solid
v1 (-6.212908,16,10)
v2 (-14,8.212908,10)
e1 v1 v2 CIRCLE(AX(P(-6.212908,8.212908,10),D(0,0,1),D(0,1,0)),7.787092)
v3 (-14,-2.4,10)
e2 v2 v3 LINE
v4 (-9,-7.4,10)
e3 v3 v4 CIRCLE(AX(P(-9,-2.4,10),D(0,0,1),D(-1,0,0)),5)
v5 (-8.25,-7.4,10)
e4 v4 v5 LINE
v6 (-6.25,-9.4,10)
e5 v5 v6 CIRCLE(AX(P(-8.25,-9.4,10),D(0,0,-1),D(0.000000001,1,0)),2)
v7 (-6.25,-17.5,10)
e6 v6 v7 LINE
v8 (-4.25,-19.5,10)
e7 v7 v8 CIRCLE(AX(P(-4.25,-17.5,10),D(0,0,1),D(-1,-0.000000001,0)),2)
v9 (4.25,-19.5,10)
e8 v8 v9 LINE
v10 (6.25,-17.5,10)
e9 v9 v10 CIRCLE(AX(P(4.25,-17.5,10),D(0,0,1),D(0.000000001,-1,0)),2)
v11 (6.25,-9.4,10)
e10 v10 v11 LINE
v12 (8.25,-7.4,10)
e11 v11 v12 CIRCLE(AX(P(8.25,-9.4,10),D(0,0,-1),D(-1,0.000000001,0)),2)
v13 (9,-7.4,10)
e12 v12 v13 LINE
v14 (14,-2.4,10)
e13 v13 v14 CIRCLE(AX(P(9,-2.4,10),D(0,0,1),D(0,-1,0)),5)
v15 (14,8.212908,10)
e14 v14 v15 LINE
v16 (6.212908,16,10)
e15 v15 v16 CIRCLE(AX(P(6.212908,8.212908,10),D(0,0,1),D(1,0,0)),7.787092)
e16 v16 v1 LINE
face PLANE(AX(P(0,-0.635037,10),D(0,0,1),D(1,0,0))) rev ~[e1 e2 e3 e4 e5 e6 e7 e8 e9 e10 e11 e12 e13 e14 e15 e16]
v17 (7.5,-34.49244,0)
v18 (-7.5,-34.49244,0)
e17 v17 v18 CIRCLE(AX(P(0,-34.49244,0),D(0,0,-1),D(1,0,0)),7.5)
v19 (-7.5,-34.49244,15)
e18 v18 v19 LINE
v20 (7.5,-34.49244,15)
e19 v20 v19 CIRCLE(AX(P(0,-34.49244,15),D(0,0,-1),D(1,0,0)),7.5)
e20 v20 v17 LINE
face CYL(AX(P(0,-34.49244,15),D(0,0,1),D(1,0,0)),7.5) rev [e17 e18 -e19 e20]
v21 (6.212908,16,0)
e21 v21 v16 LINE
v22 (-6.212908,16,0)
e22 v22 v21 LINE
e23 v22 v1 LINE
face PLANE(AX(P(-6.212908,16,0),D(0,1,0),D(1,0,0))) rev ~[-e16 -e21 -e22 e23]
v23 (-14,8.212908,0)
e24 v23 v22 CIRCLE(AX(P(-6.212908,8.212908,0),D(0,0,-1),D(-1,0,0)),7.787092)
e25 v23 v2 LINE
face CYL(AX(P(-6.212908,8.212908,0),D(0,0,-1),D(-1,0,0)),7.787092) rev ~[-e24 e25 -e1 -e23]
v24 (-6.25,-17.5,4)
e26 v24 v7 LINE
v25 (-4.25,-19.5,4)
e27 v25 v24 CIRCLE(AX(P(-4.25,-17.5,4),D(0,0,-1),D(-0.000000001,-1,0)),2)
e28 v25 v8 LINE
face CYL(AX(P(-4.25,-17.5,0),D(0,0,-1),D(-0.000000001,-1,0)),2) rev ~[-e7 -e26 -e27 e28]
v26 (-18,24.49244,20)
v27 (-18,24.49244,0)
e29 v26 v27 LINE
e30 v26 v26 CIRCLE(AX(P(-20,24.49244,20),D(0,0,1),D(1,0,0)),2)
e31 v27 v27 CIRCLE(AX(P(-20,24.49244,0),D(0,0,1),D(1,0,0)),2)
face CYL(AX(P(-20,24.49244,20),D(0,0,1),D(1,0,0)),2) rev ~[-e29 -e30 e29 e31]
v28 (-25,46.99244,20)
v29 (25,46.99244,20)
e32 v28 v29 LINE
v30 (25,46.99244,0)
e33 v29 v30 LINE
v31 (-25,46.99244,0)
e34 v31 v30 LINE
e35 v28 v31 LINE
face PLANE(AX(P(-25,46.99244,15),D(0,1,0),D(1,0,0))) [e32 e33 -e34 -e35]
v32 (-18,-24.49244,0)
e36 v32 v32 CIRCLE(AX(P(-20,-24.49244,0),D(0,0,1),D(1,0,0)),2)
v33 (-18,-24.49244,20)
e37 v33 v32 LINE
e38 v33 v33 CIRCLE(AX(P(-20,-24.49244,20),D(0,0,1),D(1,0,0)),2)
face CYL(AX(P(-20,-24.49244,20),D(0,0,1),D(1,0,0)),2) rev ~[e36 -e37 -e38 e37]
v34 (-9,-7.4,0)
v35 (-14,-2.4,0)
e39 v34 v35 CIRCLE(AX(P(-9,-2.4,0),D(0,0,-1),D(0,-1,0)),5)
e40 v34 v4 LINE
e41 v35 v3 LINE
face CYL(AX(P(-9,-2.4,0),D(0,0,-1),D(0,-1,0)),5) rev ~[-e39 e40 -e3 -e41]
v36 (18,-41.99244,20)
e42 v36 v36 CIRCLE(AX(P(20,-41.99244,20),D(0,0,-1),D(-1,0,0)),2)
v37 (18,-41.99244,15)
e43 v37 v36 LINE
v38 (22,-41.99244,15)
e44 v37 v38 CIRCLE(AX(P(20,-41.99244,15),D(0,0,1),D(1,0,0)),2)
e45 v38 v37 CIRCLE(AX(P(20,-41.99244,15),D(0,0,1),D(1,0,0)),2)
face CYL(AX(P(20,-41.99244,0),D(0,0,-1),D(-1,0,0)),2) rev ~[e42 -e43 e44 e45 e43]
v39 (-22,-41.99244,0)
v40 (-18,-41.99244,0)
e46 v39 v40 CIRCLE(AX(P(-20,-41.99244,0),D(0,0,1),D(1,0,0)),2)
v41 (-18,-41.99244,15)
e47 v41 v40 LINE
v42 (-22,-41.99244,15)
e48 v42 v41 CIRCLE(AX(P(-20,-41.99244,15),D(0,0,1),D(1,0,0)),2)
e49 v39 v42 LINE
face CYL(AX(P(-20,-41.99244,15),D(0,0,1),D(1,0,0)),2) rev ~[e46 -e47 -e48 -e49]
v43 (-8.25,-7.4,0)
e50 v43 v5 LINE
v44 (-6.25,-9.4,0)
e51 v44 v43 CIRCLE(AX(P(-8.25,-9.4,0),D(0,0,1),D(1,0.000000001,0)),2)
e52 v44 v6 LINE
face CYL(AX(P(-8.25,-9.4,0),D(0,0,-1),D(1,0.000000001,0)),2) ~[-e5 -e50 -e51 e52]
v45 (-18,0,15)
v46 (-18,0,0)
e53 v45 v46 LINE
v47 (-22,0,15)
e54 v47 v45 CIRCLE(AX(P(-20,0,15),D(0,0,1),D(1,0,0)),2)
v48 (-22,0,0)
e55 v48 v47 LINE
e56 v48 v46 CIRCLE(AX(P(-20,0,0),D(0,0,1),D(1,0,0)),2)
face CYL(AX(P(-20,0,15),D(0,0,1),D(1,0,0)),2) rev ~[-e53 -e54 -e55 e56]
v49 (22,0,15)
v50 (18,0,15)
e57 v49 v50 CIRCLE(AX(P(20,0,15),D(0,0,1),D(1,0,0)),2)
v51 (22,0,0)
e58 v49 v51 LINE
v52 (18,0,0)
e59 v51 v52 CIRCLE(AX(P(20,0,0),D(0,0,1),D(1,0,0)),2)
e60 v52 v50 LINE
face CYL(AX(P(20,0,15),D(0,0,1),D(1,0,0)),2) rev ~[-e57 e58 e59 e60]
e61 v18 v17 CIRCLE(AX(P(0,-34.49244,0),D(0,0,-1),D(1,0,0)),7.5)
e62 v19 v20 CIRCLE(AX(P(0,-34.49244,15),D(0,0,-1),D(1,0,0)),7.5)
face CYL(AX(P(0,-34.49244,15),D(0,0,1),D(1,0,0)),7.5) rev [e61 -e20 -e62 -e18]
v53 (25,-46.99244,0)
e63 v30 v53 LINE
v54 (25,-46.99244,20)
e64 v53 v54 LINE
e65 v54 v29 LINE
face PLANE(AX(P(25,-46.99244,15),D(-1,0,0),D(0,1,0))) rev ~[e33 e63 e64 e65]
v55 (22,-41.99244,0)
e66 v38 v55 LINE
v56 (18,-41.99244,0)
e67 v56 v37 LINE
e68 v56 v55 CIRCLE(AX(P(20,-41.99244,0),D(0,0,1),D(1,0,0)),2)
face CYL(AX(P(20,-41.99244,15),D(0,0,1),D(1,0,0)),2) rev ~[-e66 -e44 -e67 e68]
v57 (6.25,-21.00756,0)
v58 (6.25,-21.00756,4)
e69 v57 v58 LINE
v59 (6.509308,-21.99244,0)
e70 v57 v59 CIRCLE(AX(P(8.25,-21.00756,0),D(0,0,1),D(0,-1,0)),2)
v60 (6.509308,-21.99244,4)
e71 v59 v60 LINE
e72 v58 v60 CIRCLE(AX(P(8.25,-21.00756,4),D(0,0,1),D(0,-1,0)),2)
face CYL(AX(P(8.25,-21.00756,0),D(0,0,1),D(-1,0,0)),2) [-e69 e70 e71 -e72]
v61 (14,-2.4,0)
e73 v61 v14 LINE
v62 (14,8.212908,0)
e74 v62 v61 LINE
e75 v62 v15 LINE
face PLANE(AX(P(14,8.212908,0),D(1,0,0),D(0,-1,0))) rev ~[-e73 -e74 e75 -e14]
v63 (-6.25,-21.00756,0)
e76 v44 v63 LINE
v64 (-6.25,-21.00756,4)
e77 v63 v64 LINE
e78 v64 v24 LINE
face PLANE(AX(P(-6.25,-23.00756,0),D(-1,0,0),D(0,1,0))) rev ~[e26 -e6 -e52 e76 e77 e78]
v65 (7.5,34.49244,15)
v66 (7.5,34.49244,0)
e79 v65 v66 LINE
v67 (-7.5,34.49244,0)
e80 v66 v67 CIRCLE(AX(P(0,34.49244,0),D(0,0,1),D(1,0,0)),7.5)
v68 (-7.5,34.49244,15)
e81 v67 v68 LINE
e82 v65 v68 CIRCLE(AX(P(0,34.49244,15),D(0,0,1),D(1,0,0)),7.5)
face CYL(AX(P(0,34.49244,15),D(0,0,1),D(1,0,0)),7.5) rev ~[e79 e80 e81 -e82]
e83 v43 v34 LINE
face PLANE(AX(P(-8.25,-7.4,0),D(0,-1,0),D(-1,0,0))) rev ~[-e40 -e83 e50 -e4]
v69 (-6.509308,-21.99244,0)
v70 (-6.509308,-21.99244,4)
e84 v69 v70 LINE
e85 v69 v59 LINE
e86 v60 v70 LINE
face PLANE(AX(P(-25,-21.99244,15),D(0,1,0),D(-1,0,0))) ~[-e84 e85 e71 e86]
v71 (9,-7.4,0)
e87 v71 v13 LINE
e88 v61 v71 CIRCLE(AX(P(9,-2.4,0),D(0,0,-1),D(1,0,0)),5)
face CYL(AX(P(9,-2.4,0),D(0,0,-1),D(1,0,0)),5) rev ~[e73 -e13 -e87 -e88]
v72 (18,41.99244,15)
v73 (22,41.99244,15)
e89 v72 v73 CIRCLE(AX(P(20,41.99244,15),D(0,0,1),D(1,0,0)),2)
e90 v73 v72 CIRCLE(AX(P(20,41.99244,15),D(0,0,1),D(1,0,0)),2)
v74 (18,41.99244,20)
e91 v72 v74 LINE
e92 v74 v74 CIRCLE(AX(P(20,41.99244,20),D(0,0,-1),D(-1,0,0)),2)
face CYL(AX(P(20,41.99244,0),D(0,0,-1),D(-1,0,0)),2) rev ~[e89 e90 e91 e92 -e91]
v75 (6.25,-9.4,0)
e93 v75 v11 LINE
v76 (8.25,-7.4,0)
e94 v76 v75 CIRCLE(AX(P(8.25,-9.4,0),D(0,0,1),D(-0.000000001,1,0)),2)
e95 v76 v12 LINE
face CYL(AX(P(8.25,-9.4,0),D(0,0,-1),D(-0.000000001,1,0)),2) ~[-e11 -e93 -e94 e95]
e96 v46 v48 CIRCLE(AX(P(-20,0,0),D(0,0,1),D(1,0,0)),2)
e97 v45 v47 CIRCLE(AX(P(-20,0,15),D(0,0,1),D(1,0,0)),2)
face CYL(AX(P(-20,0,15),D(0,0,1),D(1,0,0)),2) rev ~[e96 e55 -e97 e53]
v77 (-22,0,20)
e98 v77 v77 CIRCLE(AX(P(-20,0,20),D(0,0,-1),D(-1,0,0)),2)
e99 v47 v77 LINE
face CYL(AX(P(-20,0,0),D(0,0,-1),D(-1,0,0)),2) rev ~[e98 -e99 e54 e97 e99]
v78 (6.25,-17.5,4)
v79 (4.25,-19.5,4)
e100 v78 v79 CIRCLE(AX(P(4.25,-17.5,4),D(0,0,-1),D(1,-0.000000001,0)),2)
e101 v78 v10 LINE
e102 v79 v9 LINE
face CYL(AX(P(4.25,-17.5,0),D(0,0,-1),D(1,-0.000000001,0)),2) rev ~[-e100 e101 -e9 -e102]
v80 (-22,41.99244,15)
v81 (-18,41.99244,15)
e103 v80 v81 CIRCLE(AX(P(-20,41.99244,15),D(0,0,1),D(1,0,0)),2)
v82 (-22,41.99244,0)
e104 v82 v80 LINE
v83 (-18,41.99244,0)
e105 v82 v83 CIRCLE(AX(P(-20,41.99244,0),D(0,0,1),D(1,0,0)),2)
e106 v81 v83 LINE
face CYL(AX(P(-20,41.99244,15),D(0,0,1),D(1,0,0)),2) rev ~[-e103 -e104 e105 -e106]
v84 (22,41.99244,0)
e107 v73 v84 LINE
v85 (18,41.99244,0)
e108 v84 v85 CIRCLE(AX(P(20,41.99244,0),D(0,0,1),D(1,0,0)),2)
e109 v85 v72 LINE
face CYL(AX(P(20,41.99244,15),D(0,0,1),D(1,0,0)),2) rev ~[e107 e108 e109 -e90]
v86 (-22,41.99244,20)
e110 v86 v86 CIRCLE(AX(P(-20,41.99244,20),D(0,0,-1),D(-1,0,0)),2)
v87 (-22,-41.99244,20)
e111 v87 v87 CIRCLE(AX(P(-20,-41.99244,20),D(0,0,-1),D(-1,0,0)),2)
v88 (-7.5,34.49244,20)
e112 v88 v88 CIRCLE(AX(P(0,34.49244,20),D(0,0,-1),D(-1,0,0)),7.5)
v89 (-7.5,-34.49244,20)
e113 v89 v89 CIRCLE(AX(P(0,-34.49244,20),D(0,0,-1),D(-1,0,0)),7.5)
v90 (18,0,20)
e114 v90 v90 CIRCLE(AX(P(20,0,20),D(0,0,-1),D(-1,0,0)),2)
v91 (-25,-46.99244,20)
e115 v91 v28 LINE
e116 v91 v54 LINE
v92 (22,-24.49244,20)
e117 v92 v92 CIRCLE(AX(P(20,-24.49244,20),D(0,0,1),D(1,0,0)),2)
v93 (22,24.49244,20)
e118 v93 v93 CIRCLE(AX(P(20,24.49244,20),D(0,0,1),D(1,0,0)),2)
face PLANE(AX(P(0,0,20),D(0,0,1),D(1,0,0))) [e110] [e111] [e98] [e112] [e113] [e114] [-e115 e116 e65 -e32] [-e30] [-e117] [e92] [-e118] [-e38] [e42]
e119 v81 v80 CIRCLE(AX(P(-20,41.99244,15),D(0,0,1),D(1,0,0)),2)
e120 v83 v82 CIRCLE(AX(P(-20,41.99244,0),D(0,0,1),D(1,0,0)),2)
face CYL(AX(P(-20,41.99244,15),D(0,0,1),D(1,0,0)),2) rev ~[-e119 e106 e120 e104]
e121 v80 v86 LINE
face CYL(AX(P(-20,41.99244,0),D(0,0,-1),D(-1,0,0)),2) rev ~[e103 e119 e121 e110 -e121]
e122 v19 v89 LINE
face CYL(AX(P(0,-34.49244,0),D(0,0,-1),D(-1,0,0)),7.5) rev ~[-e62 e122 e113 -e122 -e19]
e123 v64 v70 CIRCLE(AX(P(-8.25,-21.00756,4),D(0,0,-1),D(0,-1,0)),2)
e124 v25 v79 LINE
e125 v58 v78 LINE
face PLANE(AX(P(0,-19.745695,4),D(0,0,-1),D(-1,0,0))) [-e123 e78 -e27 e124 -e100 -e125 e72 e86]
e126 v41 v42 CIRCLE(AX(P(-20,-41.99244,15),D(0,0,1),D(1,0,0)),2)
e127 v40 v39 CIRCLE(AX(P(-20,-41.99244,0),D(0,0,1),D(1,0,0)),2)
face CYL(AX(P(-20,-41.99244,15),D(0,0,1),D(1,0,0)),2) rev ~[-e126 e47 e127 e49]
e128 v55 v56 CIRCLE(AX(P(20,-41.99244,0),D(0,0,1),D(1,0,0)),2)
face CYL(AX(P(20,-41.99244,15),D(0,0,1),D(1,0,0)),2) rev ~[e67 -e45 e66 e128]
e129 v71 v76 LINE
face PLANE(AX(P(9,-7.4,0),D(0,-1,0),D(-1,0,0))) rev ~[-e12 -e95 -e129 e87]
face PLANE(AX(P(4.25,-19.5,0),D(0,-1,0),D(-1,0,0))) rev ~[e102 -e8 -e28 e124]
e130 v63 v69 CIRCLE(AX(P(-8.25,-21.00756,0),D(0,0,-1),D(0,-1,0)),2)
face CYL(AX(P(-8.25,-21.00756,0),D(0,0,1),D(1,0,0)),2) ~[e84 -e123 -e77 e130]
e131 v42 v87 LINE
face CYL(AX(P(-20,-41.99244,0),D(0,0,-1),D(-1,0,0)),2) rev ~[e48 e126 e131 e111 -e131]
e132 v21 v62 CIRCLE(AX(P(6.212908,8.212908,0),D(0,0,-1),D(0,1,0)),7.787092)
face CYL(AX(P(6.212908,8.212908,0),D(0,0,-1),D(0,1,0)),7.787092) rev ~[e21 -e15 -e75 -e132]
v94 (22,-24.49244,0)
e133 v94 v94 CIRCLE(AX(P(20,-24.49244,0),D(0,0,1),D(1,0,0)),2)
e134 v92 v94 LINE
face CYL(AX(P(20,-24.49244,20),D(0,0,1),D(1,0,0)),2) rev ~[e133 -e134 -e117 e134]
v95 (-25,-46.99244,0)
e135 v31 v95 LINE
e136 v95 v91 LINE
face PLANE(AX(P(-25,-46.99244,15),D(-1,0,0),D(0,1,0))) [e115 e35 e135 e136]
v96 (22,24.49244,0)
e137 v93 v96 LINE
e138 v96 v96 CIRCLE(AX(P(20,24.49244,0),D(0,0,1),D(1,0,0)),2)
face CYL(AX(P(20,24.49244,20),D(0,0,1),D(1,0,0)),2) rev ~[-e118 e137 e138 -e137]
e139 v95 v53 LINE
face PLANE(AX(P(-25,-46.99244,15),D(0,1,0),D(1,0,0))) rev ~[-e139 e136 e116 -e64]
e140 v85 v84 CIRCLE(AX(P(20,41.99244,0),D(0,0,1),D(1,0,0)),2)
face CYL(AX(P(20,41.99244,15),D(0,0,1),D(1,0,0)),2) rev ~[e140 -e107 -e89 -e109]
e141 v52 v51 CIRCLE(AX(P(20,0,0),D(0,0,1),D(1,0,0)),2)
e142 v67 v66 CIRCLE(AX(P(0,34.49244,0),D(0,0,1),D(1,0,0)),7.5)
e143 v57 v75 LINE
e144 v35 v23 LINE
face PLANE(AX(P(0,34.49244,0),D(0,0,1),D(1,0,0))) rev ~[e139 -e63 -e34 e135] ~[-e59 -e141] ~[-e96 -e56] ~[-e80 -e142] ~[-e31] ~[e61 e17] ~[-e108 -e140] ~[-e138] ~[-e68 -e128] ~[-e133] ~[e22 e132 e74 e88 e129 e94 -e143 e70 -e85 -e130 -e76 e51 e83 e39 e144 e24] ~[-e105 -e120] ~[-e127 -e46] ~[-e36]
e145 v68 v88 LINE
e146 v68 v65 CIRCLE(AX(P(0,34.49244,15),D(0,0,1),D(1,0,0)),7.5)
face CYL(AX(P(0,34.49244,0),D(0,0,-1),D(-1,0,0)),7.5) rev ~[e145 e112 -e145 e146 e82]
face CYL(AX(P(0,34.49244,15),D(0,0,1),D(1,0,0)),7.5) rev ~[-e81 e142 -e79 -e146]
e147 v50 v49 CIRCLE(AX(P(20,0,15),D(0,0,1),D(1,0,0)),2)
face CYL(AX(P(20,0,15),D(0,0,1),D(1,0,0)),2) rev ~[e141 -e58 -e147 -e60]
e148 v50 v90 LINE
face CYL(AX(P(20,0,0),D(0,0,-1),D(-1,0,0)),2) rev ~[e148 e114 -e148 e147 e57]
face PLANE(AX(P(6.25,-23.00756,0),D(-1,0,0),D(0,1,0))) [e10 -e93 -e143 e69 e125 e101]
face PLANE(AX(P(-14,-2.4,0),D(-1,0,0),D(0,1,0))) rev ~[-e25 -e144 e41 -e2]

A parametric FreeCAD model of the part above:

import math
import FreeCAD as App
import Part
import Sketcher


def edges_at(feature, points):
    """Names of the edges that pass closest to the given points."""
    edges = feature.Shape.Edges
    near = lambda p: min(range(len(edges)), key=lambda i: edges[i].distToShape(Part.Vertex(*p))[0])
    return sorted({f"Edge{near(p) + 1}" for p in points})

doc = App.newDocument("Part")
params = doc.addObject("Spreadsheet::Sheet", "Params")
for row, (alias, value) in enumerate([
    ("sketch1_radius", "10 mm"),
    ("sketch1_width", "14 mm"),
    ("pad1_length", "15 mm"),
    ("sketch2_radius", "5 mm"),
    ("sketch2_radius2", "2 mm"),
    ("sketch2_width", "12.5 mm"),
    ("sketch3_radius", "2 mm"),
    ("sketch3_radius2", "5 mm"),
    ("sketch3_width", "50 mm"),
    ("sketch3_height", "45 mm"),
    ("sketch3_width2", "8.5 mm"),
    ("pad2_length", "15 mm"),
    ("sketch4_width", "12.5 mm"),
    ("pocket2_length", "4 mm"),
    ("fillet_radius", "2 mm"),
    ("sketch5_diameter", "15 mm"),
    ("sketch5_width", "50 mm"),
    ("sketch5_height", "25 mm"),
    ("pad3_length", "15 mm"),
    ("sketch6_diameter", "4 mm"),
    ("sketch7_radius", "2 mm"),
    ("sketch7_radius2", "5 mm"),
    ("sketch7_width", "8.5 mm"),
    ("sketch7_height", "8.1 mm"),
    ("pad4_length", "5 mm"),
    ("sketch8_width", "50 mm"),
    ("pad5_length", "5 mm"),
    ("sketch9_diameter", "4 mm"),
    ("sketch9_diameter2", "15 mm"),
    ("sketch10_diameter", "4 mm"),
], start=1):
    params.set(f"A{row}", alias)
    params.set(f"B{row}", "=" + value)
    params.setAlias(f"B{row}", alias)

body = doc.addObject("PartDesign::Body", "Body")

sketch1 = doc.addObject("Sketcher::SketchObject", "Sketch")
body.addObject(sketch1)
sketch1.AttachmentSupport = (doc.XY_Plane, [""])
sketch1.MapMode = "FlatFace"
sketch1.addGeometry([
    Part.LineSegment(App.Vector(7, 19, 0), App.Vector(-7, 19, 0)),
    Part.ArcOfCircle(Part.Circle(App.Vector(-7, 9, 0), App.Vector(0, 0, 1), 10), math.radians(90), math.radians(180)),
    Part.LineSegment(App.Vector(-17, 9, 0), App.Vector(-17, -5, 0)),
    Part.ArcOfCircle(Part.Circle(App.Vector(-7, -5, 0), App.Vector(0, 0, 1), 10), math.radians(180), math.radians(270)),
    Part.LineSegment(App.Vector(-7, -15, 0), App.Vector(7, -15, 0)),
    Part.ArcOfCircle(Part.Circle(App.Vector(7, -5, 0), App.Vector(0, 0, 1), 10), math.radians(-90), math.radians(0)),
    Part.LineSegment(App.Vector(17, -5, 0), App.Vector(17, 9, 0)),
    Part.ArcOfCircle(Part.Circle(App.Vector(7, 9, 0), App.Vector(0, 0, 1), 10), math.radians(0), math.radians(90)),
], False)
sketch1.addConstraint([
    Sketcher.Constraint("Tangent", 0, 2, 1, 1),
    Sketcher.Constraint("Tangent", 1, 2, 2, 1),
    Sketcher.Constraint("Tangent", 2, 2, 3, 1),
    Sketcher.Constraint("Tangent", 3, 2, 4, 1),
    Sketcher.Constraint("Tangent", 4, 2, 5, 1),
    Sketcher.Constraint("Tangent", 5, 2, 6, 1),
    Sketcher.Constraint("Tangent", 6, 2, 7, 1),
    Sketcher.Constraint("Tangent", 7, 2, 0, 1),
    Sketcher.Constraint("Horizontal", 0),
    Sketcher.Constraint("Vertical", 2),
    Sketcher.Constraint("Horizontal", 4),
    Sketcher.Constraint("Vertical", 6),
    Sketcher.Constraint("Equal", 1, 3),
    Sketcher.Constraint("Equal", 3, 5),
    Sketcher.Constraint("Equal", 5, 7),
    Sketcher.Constraint("Equal", 4, 2),
    Sketcher.Constraint("Radius", 1, 10.0),
    Sketcher.Constraint("DistanceX", 0, 2, 0, 1, 14.0),
    Sketcher.Constraint("DistanceX", 1, 3, -1, 1, 7.0),
    Sketcher.Constraint("DistanceY", -1, 1, 1, 3, 9.0),
])
sketch1.setExpression("Constraints[16]", "Params.sketch1_radius")
sketch1.setExpression("Constraints[17]", "Params.sketch1_width")
pad1 = doc.addObject("PartDesign::Pad", "Pad")
body.addObject(pad1)
pad1.Profile = sketch1
pad1.setExpression("Length", "Params.pad1_length")

sketch2 = doc.addObject("Sketcher::SketchObject", "Sketch001")
body.addObject(sketch2)
sketch2.AttachmentSupport = (doc.XY_Plane, [""])
sketch2.MapMode = "FlatFace"
sketch2.addGeometry([
    Part.ArcOfCircle(Part.Circle(App.Vector(-6.2, 8.2, 0), App.Vector(0, 0, 1), 7.8), math.radians(90), math.radians(180)),
    Part.LineSegment(App.Vector(-6.2, 16, 0), App.Vector(6.2, 16, 0)),
    Part.ArcOfCircle(Part.Circle(App.Vector(6.2, 8.2, 0), App.Vector(0, 0, 1), 7.8), math.radians(0), math.radians(90)),
    Part.LineSegment(App.Vector(14, 8.2, 0), App.Vector(14, -2.4, 0)),
    Part.ArcOfCircle(Part.Circle(App.Vector(9, -2.4, 0), App.Vector(0, 0, 1), 5), math.radians(-90), math.radians(0)),
    Part.LineSegment(App.Vector(9, -7.4, 0), App.Vector(8.2, -7.4, 0)),
    Part.ArcOfCircle(Part.Circle(App.Vector(8.3, -9.4, 0), App.Vector(0, 0, 1), 2), math.radians(90), math.radians(180)),
    Part.LineSegment(App.Vector(6.2, -9.4, 0), App.Vector(6.2, -17.6, 0)),
    Part.LineSegment(App.Vector(6.2, -17.6, 0), App.Vector(-6.2, -17.6, 0)),
    Part.LineSegment(App.Vector(-6.2, -17.6, 0), App.Vector(-6.2, -9.4, 0)),
    Part.ArcOfCircle(Part.Circle(App.Vector(-8.3, -9.4, 0), App.Vector(0, 0, 1), 2), math.radians(0), math.radians(90)),
    Part.LineSegment(App.Vector(-8.2, -7.4, 0), App.Vector(-9, -7.4, 0)),
    Part.ArcOfCircle(Part.Circle(App.Vector(-9, -2.4, 0), App.Vector(0, 0, 1), 5), math.radians(180), math.radians(270)),
    Part.LineSegment(App.Vector(-14, -2.4, 0), App.Vector(-14, 8.2, 0)),
], False)
sketch2.addConstraint([
    Sketcher.Constraint("Tangent", 0, 1, 1, 1),
    Sketcher.Constraint("Tangent", 1, 2, 2, 2),
    Sketcher.Constraint("Tangent", 2, 1, 3, 1),
    Sketcher.Constraint("Tangent", 3, 2, 4, 2),
    Sketcher.Constraint("Tangent", 4, 1, 5, 1),
    Sketcher.Constraint("Tangent", 5, 2, 6, 1),
    Sketcher.Constraint("Tangent", 6, 2, 7, 1),
    Sketcher.Constraint("Coincident", 7, 2, 8, 1),
    Sketcher.Constraint("Coincident", 8, 2, 9, 1),
    Sketcher.Constraint("Tangent", 9, 2, 10, 1),
    Sketcher.Constraint("Tangent", 10, 2, 11, 1),
    Sketcher.Constraint("Tangent", 11, 2, 12, 2),
    Sketcher.Constraint("Tangent", 12, 1, 13, 1),
    Sketcher.Constraint("Tangent", 13, 2, 0, 2),
    Sketcher.Constraint("Horizontal", 1),
    Sketcher.Constraint("Vertical", 3),
    Sketcher.Constraint("Horizontal", 5),
    Sketcher.Constraint("Vertical", 7),
    Sketcher.Constraint("Horizontal", 8),
    Sketcher.Constraint("Vertical", 9),
    Sketcher.Constraint("Horizontal", 11),
    Sketcher.Constraint("Vertical", 13),
    Sketcher.Constraint("Equal", 0, 2),
    Sketcher.Constraint("Equal", 6, 10),
    Sketcher.Constraint("Equal", 4, 12),
    Sketcher.Constraint("Symmetric", 6, 3, 10, 3, -2),
    Sketcher.Constraint("Equal", 5, 11),
    Sketcher.Constraint("Radius", 4, 5.0),
    Sketcher.Constraint("Radius", 6, 2.0),
    Sketcher.Constraint("DistanceX", 8, 2, 8, 1, 12.5),
    Sketcher.Constraint("DistanceX", -1, 1, 4, 3, 9.0),
    Sketcher.Constraint("DistanceY", -1, 1, 0, 1, 16.0),
    Sketcher.Constraint("DistanceY", 4, 3, -1, 1, 2.4),
    Sketcher.Constraint("Radius", 0, 7.787092),
    Sketcher.Constraint("DistanceY", 7, 2, 7, 1, 8.225395),
])
sketch2.setExpression("Constraints[27]", "Params.sketch2_radius")
sketch2.setExpression("Constraints[28]", "Params.sketch2_radius2")
sketch2.setExpression("Constraints[29]", "Params.sketch2_width")
pocket1 = doc.addObject("PartDesign::Pocket", "Pocket")
body.addObject(pocket1)
pocket1.Profile = sketch2
pocket1.Type = "ThroughAll"
pocket1.Reversed = True

sketch3 = doc.addObject("Sketcher::SketchObject", "Sketch002")
body.addObject(sketch3)
sketch3.AttachmentSupport = (doc.XY_Plane, [""])
sketch3.MapMode = "FlatFace"
sketch3.addGeometry([
    Part.LineSegment(App.Vector(25, 22, 0), App.Vector(25, -23, 0)),
    Part.LineSegment(App.Vector(25, -23, 0), App.Vector(-25, -23, 0)),
    Part.LineSegment(App.Vector(-25, -23, 0), App.Vector(-25, 22, 0)),
    Part.LineSegment(App.Vector(-25, 22, 0), App.Vector(25, 22, 0)),
    Part.LineSegment(App.Vector(6.2, -17.5, 0), App.Vector(6.2, -9.4, 0)),
    Part.ArcOfCircle(Part.Circle(App.Vector(8.3, -9.4, 0), App.Vector(0, 0, 1), 2), math.radians(90), math.radians(180)),
    Part.LineSegment(App.Vector(8.2, -7.4, 0), App.Vector(9, -7.4, 0)),
    Part.ArcOfCircle(Part.Circle(App.Vector(9, -2.4, 0), App.Vector(0, 0, 1), 5), math.radians(-90), math.radians(0)),
    Part.LineSegment(App.Vector(14, -2.4, 0), App.Vector(14, 8.2, 0)),
    Part.ArcOfCircle(Part.Circle(App.Vector(6.2, 8.2, 0), App.Vector(0, 0, 1), 7.8), math.radians(0), math.radians(90)),
    Part.LineSegment(App.Vector(6.2, 16, 0), App.Vector(-6.2, 16, 0)),
    Part.ArcOfCircle(Part.Circle(App.Vector(-6.2, 8.2, 0), App.Vector(0, 0, 1), 7.8), math.radians(90), math.radians(180)),
    Part.LineSegment(App.Vector(-14, 8.2, 0), App.Vector(-14, -2.4, 0)),
    Part.ArcOfCircle(Part.Circle(App.Vector(-9, -2.4, 0), App.Vector(0, 0, 1), 5), math.radians(180), math.radians(270)),
    Part.LineSegment(App.Vector(-9, -7.4, 0), App.Vector(-8.2, -7.4, 0)),
    Part.ArcOfCircle(Part.Circle(App.Vector(-8.3, -9.4, 0), App.Vector(0, 0, 1), 2), math.radians(0), math.radians(90)),
    Part.LineSegment(App.Vector(-6.2, -9.4, 0), App.Vector(-6.2, -17.5, 0)),
    Part.ArcOfCircle(Part.Circle(App.Vector(-4.2, -17.5, 0), App.Vector(0, 0, 1), 2), math.radians(-180), math.radians(-90)),
    Part.LineSegment(App.Vector(-4.2, -19.5, 0), App.Vector(4.2, -19.5, 0)),
    Part.ArcOfCircle(Part.Circle(App.Vector(4.2, -17.5, 0), App.Vector(0, 0, 1), 2), math.radians(-90), math.radians(0)),
], False)
sketch3.addConstraint([
    Sketcher.Constraint("Coincident", 0, 2, 1, 1),
    Sketcher.Constraint("Coincident", 1, 2, 2, 1),
    Sketcher.Constraint("Coincident", 2, 2, 3, 1),
    Sketcher.Constraint("Coincident", 3, 2, 0, 1),
    Sketcher.Constraint("Tangent", 4, 2, 5, 2),
    Sketcher.Constraint("Tangent", 5, 1, 6, 1),
    Sketcher.Constraint("Tangent", 6, 2, 7, 1),
    Sketcher.Constraint("Tangent", 7, 2, 8, 1),
    Sketcher.Constraint("Tangent", 8, 2, 9, 1),
    Sketcher.Constraint("Tangent", 9, 2, 10, 1),
    Sketcher.Constraint("Tangent", 10, 2, 11, 1),
    Sketcher.Constraint("Tangent", 11, 2, 12, 1),
    Sketcher.Constraint("Tangent", 12, 2, 13, 1),
    Sketcher.Constraint("Tangent", 13, 2, 14, 1),
    Sketcher.Constraint("Tangent", 14, 2, 15, 2),
    Sketcher.Constraint("Tangent", 15, 1, 16, 1),
    Sketcher.Constraint("Tangent", 16, 2, 17, 1),
    Sketcher.Constraint("Tangent", 17, 2, 18, 1),
    Sketcher.Constraint("Tangent", 18, 2, 19, 1),
    Sketcher.Constraint("Tangent", 19, 2, 4, 1),
    Sketcher.Constraint("Vertical", 0),
    Sketcher.Constraint("Horizontal", 1),
    Sketcher.Constraint("Vertical", 2),
    Sketcher.Constraint("Horizontal", 3),
    Sketcher.Constraint("Vertical", 4),
    Sketcher.Constraint("Horizontal", 6),
    Sketcher.Constraint("Vertical", 8),
    Sketcher.Constraint("Horizontal", 10),
    Sketcher.Constraint("Vertical", 12),
    Sketcher.Constraint("Horizontal", 14),
    Sketcher.Constraint("Vertical", 16),
    Sketcher.Constraint("Horizontal", 18),
    Sketcher.Constraint("Equal", 9, 11),
    Sketcher.Constraint("Equal", 7, 13),
    Sketcher.Constraint("Equal", 5, 15),
    Sketcher.Constraint("Equal", 15, 17),
    Sketcher.Constraint("Equal", 17, 19),
    Sketcher.Constraint("Symmetric", 7, 3, 13, 3, -2),
    Sketcher.Constraint("Equal", 6, 14),
    Sketcher.Constraint("Radius", 5, 2.0),
    Sketcher.Constraint("Radius", 7, 5.0),
    Sketcher.Constraint("DistanceX", 1, 2, 1, 1, 50.0),
    Sketcher.Constraint("DistanceY", 0, 2, 0, 1, 45.0),
    Sketcher.Constraint("DistanceX", 18, 1, 18, 2, 8.5),
    Sketcher.Constraint("DistanceY", 4, 1, 4, 2, 8.1),
    Sketcher.Constraint("DistanceX", -1, 1, 7, 3, 9.0),
    Sketcher.Constraint("DistanceX", -1, 1, 0, 2, 25.0),
    Sketcher.Constraint("DistanceY", -1, 1, 9, 2, 16.0),
    Sketcher.Constraint("DistanceY", 5, 3, -1, 1, 9.4),
    Sketcher.Constraint("Radius", 9, 7.787092),
    Sketcher.Constraint("DistanceY", 0, 2, -1, 1, 23.00756),
])
sketch3.setExpression("Constraints[39]", "Params.sketch3_radius")
sketch3.setExpression("Constraints[40]", "Params.sketch3_radius2")
sketch3.setExpression("Constraints[41]", "Params.sketch3_width")
sketch3.setExpression("Constraints[42]", "Params.sketch3_height")
sketch3.setExpression("Constraints[43]", "Params.sketch3_width2")
pad2 = doc.addObject("PartDesign::Pad", "Pad001")
body.addObject(pad2)
pad2.Profile = sketch3
pad2.setExpression("Length", "Params.pad2_length")

sketch4 = doc.addObject("Sketcher::SketchObject", "Sketch003")
body.addObject(sketch4)
sketch4.AttachmentSupport = (doc.XY_Plane, [""])
sketch4.MapMode = "FlatFace"
sketch4.addGeometry([
    Part.LineSegment(App.Vector(6, -16, 0), App.Vector(6, -23, 0)),
    Part.LineSegment(App.Vector(6, -23, 0), App.Vector(-6, -23, 0)),
    Part.LineSegment(App.Vector(-6, -23, 0), App.Vector(-6, -16, 0)),
    Part.LineSegment(App.Vector(-6, -16, 0), App.Vector(6, -16, 0)),
], False)
sketch4.addConstraint([
    Sketcher.Constraint("Coincident", 0, 2, 1, 1),
    Sketcher.Constraint("Coincident", 1, 2, 2, 1),
    Sketcher.Constraint("Coincident", 2, 2, 3, 1),
    Sketcher.Constraint("Coincident", 3, 2, 0, 1),
    Sketcher.Constraint("Vertical", 0),
    Sketcher.Constraint("Horizontal", 1),
    Sketcher.Constraint("Vertical", 2),
    Sketcher.Constraint("Horizontal", 3),
    Sketcher.Constraint("DistanceX", 1, 2, 1, 1, 12.5),
    Sketcher.Constraint("DistanceX", -1, 1, 0, 2, 6.25),
    Sketcher.Constraint("DistanceY", 0, 2, 0, 1, 6.523729),
    Sketcher.Constraint("DistanceY", 0, 2, -1, 1, 23.00756),
])
sketch4.setExpression("Constraints[8]", "Params.sketch4_width")
pocket2 = doc.addObject("PartDesign::Pocket", "Pocket001")
body.addObject(pocket2)
pocket2.Profile = sketch4
pocket2.setExpression("Length", "Params.pocket2_length")
pocket2.Reversed = True
doc.recompute()

fillet = doc.addObject("PartDesign::Fillet", "Fillet")
body.addObject(fillet)
fillet.Base = (pocket2, edges_at(pocket2, [(6.25, -23.008, 2), (-6.25, -23.008, 2)]))
fillet.setExpression("Radius", "Params.fillet_radius")

sketch5 = doc.addObject("Sketcher::SketchObject", "Sketch004")
body.addObject(sketch5)
sketch5.AttachmentSupport = (doc.XY_Plane, [""])
sketch5.MapMode = "FlatFace"
sketch5.AttachmentOffset = App.Placement(App.Vector(0, 0, 15), App.Rotation())
sketch5.addGeometry([
    Part.LineSegment(App.Vector(-25, 47, 0), App.Vector(-25, 22, 0)),
    Part.LineSegment(App.Vector(-25, 22, 0), App.Vector(25, 22, 0)),
    Part.LineSegment(App.Vector(25, 22, 0), App.Vector(25, 47, 0)),
    Part.LineSegment(App.Vector(25, 47, 0), App.Vector(-25, 47, 0)),
    Part.Circle(App.Vector(0, 34, 0), App.Vector(0, 0, 1), 8),
], False)
sketch5.addConstraint([
    Sketcher.Constraint("Coincident", 0, 2, 1, 1),
    Sketcher.Constraint("Coincident", 1, 2, 2, 1),
    Sketcher.Constraint("Coincident", 2, 2, 3, 1),
    Sketcher.Constraint("Coincident", 3, 2, 0, 1),
    Sketcher.Constraint("Vertical", 0),
    Sketcher.Constraint("Horizontal", 1),
    Sketcher.Constraint("Vertical", 2),
    Sketcher.Constraint("Horizontal", 3),
    Sketcher.Constraint("PointOnObject", 4, 3, -2),
    Sketcher.Constraint("Diameter", 4, 15.0),
    Sketcher.Constraint("DistanceX", 1, 1, 1, 2, 50.0),
    Sketcher.Constraint("DistanceY", 0, 2, 0, 1, 25.0),
    Sketcher.Constraint("DistanceX", 0, 2, -1, 1, 25.0),
    Sketcher.Constraint("DistanceY", 0, 2, 4, 3, 12.5),
    Sketcher.Constraint("DistanceY", -1, 1, 4, 3, 34.49244),
])
sketch5.setExpression("Constraints[9]", "Params.sketch5_diameter")
sketch5.setExpression("Constraints[10]", "Params.sketch5_width")
sketch5.setExpression("Constraints[11]", "Params.sketch5_height")
pad3 = doc.addObject("PartDesign::Pad", "Pad002")
body.addObject(pad3)
pad3.Profile = sketch5
pad3.setExpression("Length", "Params.pad3_length")
pad3.Reversed = True
doc.recompute()

mirrored = doc.addObject("PartDesign::Mirrored", "Mirrored")
body.addObject(mirrored)
mirrored.Originals = [pad3]
mirrored.MirrorPlane = (doc.XZ_Plane, [""])
body.Tip = mirrored

sketch6 = doc.addObject("Sketcher::SketchObject", "Sketch005")
body.addObject(sketch6)
sketch6.AttachmentSupport = (doc.XY_Plane, [""])
sketch6.MapMode = "FlatFace"
sketch6.AttachmentOffset = App.Placement(App.Vector(0, 0, 15), App.Rotation())
sketch6.addGeometry([
    Part.Circle(App.Vector(-20, 42, 0), App.Vector(0, 0, 1), 2),
    Part.Circle(App.Vector(20, 42, 0), App.Vector(0, 0, 1), 2),
    Part.Circle(App.Vector(20, -42, 0), App.Vector(0, 0, 1), 2),
    Part.Circle(App.Vector(-20, -42, 0), App.Vector(0, 0, 1), 2),
    Part.Circle(App.Vector(20, 0, 0), App.Vector(0, 0, 1), 2),
    Part.Circle(App.Vector(-20, 0, 0), App.Vector(0, 0, 1), 2),
], False)
sketch6.addConstraint([
    Sketcher.Constraint("Equal", 0, 1),
    Sketcher.Constraint("Equal", 1, 2),
    Sketcher.Constraint("Equal", 2, 3),
    Sketcher.Constraint("Equal", 3, 4),
    Sketcher.Constraint("Equal", 4, 5),
    Sketcher.Constraint("Symmetric", 0, 3, 2, 3, -1, 1),
    Sketcher.Constraint("Symmetric", 1, 3, 3, 3, -1, 1),
    Sketcher.Constraint("Symmetric", 4, 3, 5, 3, -1, 1),
    Sketcher.Constraint("Symmetric", 0, 3, 1, 3, -2),
    Sketcher.Constraint("PointOnObject", 4, 3, -1),
    Sketcher.Constraint("Vertical", 2, 3, 4, 3),
    Sketcher.Constraint("Diameter", 0, 4.0),
    Sketcher.Constraint("DistanceX", 0, 3, -1, 1, 20.0),
    Sketcher.Constraint("DistanceY", -1, 1, 0, 3, 41.99244),
])
sketch6.setExpression("Constraints[11]", "Params.sketch6_diameter")
pocket3 = doc.addObject("PartDesign::Pocket", "Pocket002")
body.addObject(pocket3)
pocket3.Profile = sketch6
pocket3.Type = "ThroughAll"

sketch7 = doc.addObject("Sketcher::SketchObject", "Sketch006")
body.addObject(sketch7)
sketch7.AttachmentSupport = (doc.XY_Plane, [""])
sketch7.MapMode = "FlatFace"
sketch7.AttachmentOffset = App.Placement(App.Vector(0, 0, 15), App.Rotation())
sketch7.addGeometry([
    Part.LineSegment(App.Vector(-4.2, -19.5, 0), App.Vector(4.2, -19.5, 0)),
    Part.ArcOfCircle(Part.Circle(App.Vector(4.2, -17.5, 0), App.Vector(0, 0, 1), 2), math.radians(-90), math.radians(0)),
    Part.LineSegment(App.Vector(6.2, -17.5, 0), App.Vector(6.2, -9.4, 0)),
    Part.ArcOfCircle(Part.Circle(App.Vector(8.3, -9.4, 0), App.Vector(0, 0, 1), 2), math.radians(90), math.radians(180)),
    Part.LineSegment(App.Vector(8.2, -7.4, 0), App.Vector(9, -7.4, 0)),
    Part.ArcOfCircle(Part.Circle(App.Vector(9, -2.4, 0), App.Vector(0, 0, 1), 5), math.radians(-90), math.radians(0)),
    Part.LineSegment(App.Vector(14, -2.4, 0), App.Vector(14, 8.2, 0)),
    Part.ArcOfCircle(Part.Circle(App.Vector(6.2, 8.2, 0), App.Vector(0, 0, 1), 7.8), math.radians(0), math.radians(90)),
    Part.LineSegment(App.Vector(6.2, 16, 0), App.Vector(-6.2, 16, 0)),
    Part.ArcOfCircle(Part.Circle(App.Vector(-6.2, 8.2, 0), App.Vector(0, 0, 1), 7.8), math.radians(90), math.radians(180)),
    Part.LineSegment(App.Vector(-14, 8.2, 0), App.Vector(-14, -2.4, 0)),
    Part.ArcOfCircle(Part.Circle(App.Vector(-9, -2.4, 0), App.Vector(0, 0, 1), 5), math.radians(180), math.radians(270)),
    Part.LineSegment(App.Vector(-9, -7.4, 0), App.Vector(-8.2, -7.4, 0)),
    Part.ArcOfCircle(Part.Circle(App.Vector(-8.3, -9.4, 0), App.Vector(0, 0, 1), 2), math.radians(0), math.radians(90)),
    Part.LineSegment(App.Vector(-6.2, -9.4, 0), App.Vector(-6.2, -17.5, 0)),
    Part.ArcOfCircle(Part.Circle(App.Vector(-4.2, -17.5, 0), App.Vector(0, 0, 1), 2), math.radians(-180), math.radians(-90)),
], False)
sketch7.addConstraint([
    Sketcher.Constraint("Tangent", 0, 2, 1, 1),
    Sketcher.Constraint("Tangent", 1, 2, 2, 1),
    Sketcher.Constraint("Tangent", 2, 2, 3, 2),
    Sketcher.Constraint("Tangent", 3, 1, 4, 1),
    Sketcher.Constraint("Tangent", 4, 2, 5, 1),
    Sketcher.Constraint("Tangent", 5, 2, 6, 1),
    Sketcher.Constraint("Tangent", 6, 2, 7, 1),
    Sketcher.Constraint("Tangent", 7, 2, 8, 1),
    Sketcher.Constraint("Tangent", 8, 2, 9, 1),
    Sketcher.Constraint("Tangent", 9, 2, 10, 1),
    Sketcher.Constraint("Tangent", 10, 2, 11, 1),
    Sketcher.Constraint("Tangent", 11, 2, 12, 1),
    Sketcher.Constraint("Tangent", 12, 2, 13, 2),
    Sketcher.Constraint("Tangent", 13, 1, 14, 1),
    Sketcher.Constraint("Tangent", 14, 2, 15, 1),
    Sketcher.Constraint("Tangent", 15, 2, 0, 1),
    Sketcher.Constraint("Horizontal", 0),
    Sketcher.Constraint("Vertical", 2),
    Sketcher.Constraint("Horizontal", 4),
    Sketcher.Constraint("Vertical", 6),
    Sketcher.Constraint("Horizontal", 8),
    Sketcher.Constraint("Vertical", 10),
    Sketcher.Constraint("Horizontal", 12),
    Sketcher.Constraint("Vertical", 14),
    Sketcher.Constraint("Equal", 1, 3),
    Sketcher.Constraint("Equal", 7, 9),
    Sketcher.Constraint("Equal", 5, 11),
    Sketcher.Constraint("Equal", 3, 13),
    Sketcher.Constraint("Equal", 13, 15),
    Sketcher.Constraint("Symmetric", 5, 3, 11, 3, -2),
    Sketcher.Constraint("Equal", 4, 12),
    Sketcher.Constraint("Radius", 1, 2.0),
    Sketcher.Constraint("Radius", 5, 5.0),
    Sketcher.Constraint("DistanceX", 0, 1, 0, 2, 8.5),
    Sketcher.Constraint("DistanceY", 2, 1, 2, 2, 8.1),
    Sketcher.Constraint("DistanceX", -1, 1, 5, 3, 9.0),
    Sketcher.Constraint("DistanceY", -1, 1, 7, 2, 16.0),
    Sketcher.Constraint("DistanceY", 1, 3, -1, 1, 17.5),
    Sketcher.Constraint("Radius", 7, 7.787092),
])
sketch7.setExpression("Constraints[31]", "Params.sketch7_radius")
sketch7.setExpression("Constraints[32]", "Params.sketch7_radius2")
sketch7.setExpression("Constraints[33]", "Params.sketch7_width")
sketch7.setExpression("Constraints[34]", "Params.sketch7_height")
pad4 = doc.addObject("PartDesign::Pad", "Pad003")
body.addObject(pad4)
pad4.Profile = sketch7
pad4.setExpression("Length", "Params.pad4_length")
pad4.Reversed = True

sketch8 = doc.addObject("Sketcher::SketchObject", "Sketch007")
body.addObject(sketch8)
sketch8.AttachmentSupport = (doc.XY_Plane, [""])
sketch8.MapMode = "FlatFace"
sketch8.AttachmentOffset = App.Placement(App.Vector(0, 0, 15), App.Rotation())
sketch8.addGeometry([
    Part.LineSegment(App.Vector(-25, 47, 0), App.Vector(-25, -47, 0)),
    Part.LineSegment(App.Vector(-25, -47, 0), App.Vector(25, -47, 0)),
    Part.LineSegment(App.Vector(25, -47, 0), App.Vector(25, 47, 0)),
    Part.LineSegment(App.Vector(25, 47, 0), App.Vector(-25, 47, 0)),
], False)
sketch8.addConstraint([
    Sketcher.Constraint("Coincident", 0, 2, 1, 1),
    Sketcher.Constraint("Coincident", 1, 2, 2, 1),
    Sketcher.Constraint("Coincident", 2, 2, 3, 1),
    Sketcher.Constraint("Coincident", 3, 2, 0, 1),
    Sketcher.Constraint("Vertical", 0),
    Sketcher.Constraint("Horizontal", 1),
    Sketcher.Constraint("Vertical", 2),
    Sketcher.Constraint("Horizontal", 3),
    Sketcher.Constraint("Symmetric", 0, 2, 2, 2, -1, 1),
    Sketcher.Constraint("DistanceX", 1, 1, 1, 2, 50.0),
    Sketcher.Constraint("DistanceY", 0, 2, 0, 1, 93.984881),
])
sketch8.setExpression("Constraints[9]", "Params.sketch8_width")
pad5 = doc.addObject("PartDesign::Pad", "Pad004")
body.addObject(pad5)
pad5.Profile = sketch8
pad5.setExpression("Length", "Params.pad5_length")

sketch9 = doc.addObject("Sketcher::SketchObject", "Sketch008")
body.addObject(sketch9)
sketch9.AttachmentSupport = (doc.XY_Plane, [""])
sketch9.MapMode = "FlatFace"
sketch9.addGeometry([
    Part.Circle(App.Vector(-20, -42, 0), App.Vector(0, 0, 1), 2),
    Part.Circle(App.Vector(0, -34.5, 0), App.Vector(0, 0, 1), 7.5),
    Part.Circle(App.Vector(20, -42, 0), App.Vector(0, 0, 1), 2),
    Part.Circle(App.Vector(-20, 0, 0), App.Vector(0, 0, 1), 2),
    Part.Circle(App.Vector(20, 0, 0), App.Vector(0, 0, 1), 2),
    Part.Circle(App.Vector(20, 42, 0), App.Vector(0, 0, 1), 2),
    Part.Circle(App.Vector(0, 34.5, 0), App.Vector(0, 0, 1), 7.5),
    Part.Circle(App.Vector(-20, 42, 0), App.Vector(0, 0, 1), 2),
], False)
sketch9.addConstraint([
    Sketcher.Constraint("Equal", 0, 2),
    Sketcher.Constraint("Equal", 2, 3),
    Sketcher.Constraint("Equal", 3, 4),
    Sketcher.Constraint("Equal", 4, 5),
    Sketcher.Constraint("Equal", 1, 6),
    Sketcher.Constraint("Equal", 5, 7),
    Sketcher.Constraint("Symmetric", 3, 3, 4, 3, -1, 1),
    Sketcher.Constraint("Symmetric", 0, 3, 5, 3, -1, 1),
    Sketcher.Constraint("Symmetric", 1, 3, 6, 3, -1, 1),
    Sketcher.Constraint("Symmetric", 2, 3, 7, 3, -1, 1),
    Sketcher.Constraint("Symmetric", 0, 3, 2, 3, -2),
    Sketcher.Constraint("PointOnObject", 1, 3, -2),
    Sketcher.Constraint("PointOnObject", 3, 3, -1),
    Sketcher.Constraint("Vertical", 0, 3, 3, 3),
    Sketcher.Constraint("Diameter", 0, 4.0),
    Sketcher.Constraint("Diameter", 1, 15.0),
    Sketcher.Constraint("DistanceX", 0, 3, -1, 1, 20.0),
    Sketcher.Constraint("DistanceY", 0, 3, 1, 3, 7.5),
    Sketcher.Constraint("DistanceY", 0, 3, -1, 1, 41.99244),
])
sketch9.setExpression("Constraints[14]", "Params.sketch9_diameter")
sketch9.setExpression("Constraints[15]", "Params.sketch9_diameter2")
pocket4 = doc.addObject("PartDesign::Pocket", "Pocket003")
body.addObject(pocket4)
pocket4.Profile = sketch9
pocket4.Type = "ThroughAll"
pocket4.Reversed = True

sketch10 = doc.addObject("Sketcher::SketchObject", "Sketch009")
body.addObject(sketch10)
sketch10.AttachmentSupport = (doc.XY_Plane, [""])
sketch10.MapMode = "FlatFace"
sketch10.AttachmentOffset = App.Placement(App.Vector(0, 0, 20), App.Rotation())
sketch10.addGeometry([
    Part.Circle(App.Vector(-20, 24.5, 0), App.Vector(0, 0, 1), 2),
    Part.Circle(App.Vector(20, 24.5, 0), App.Vector(0, 0, 1), 2),
    Part.Circle(App.Vector(20, -24.5, 0), App.Vector(0, 0, 1), 2),
    Part.Circle(App.Vector(-20, -24.5, 0), App.Vector(0, 0, 1), 2),
], False)
sketch10.addConstraint([
    Sketcher.Constraint("Equal", 0, 1),
    Sketcher.Constraint("Equal", 1, 2),
    Sketcher.Constraint("Equal", 2, 3),
    Sketcher.Constraint("Symmetric", 0, 3, 2, 3, -1, 1),
    Sketcher.Constraint("Symmetric", 1, 3, 3, 3, -1, 1),
    Sketcher.Constraint("Symmetric", 0, 3, 1, 3, -2),
    Sketcher.Constraint("Diameter", 0, 4.0),
    Sketcher.Constraint("DistanceX", 0, 3, -1, 1, 20.0),
    Sketcher.Constraint("DistanceY", -1, 1, 0, 3, 24.49244),
])
sketch10.setExpression("Constraints[6]", "Params.sketch10_diameter")
pocket5 = doc.addObject("PartDesign::Pocket", "Pocket004")
body.addObject(pocket5)
pocket5.Profile = sketch10
pocket5.Type = "ThroughAll"

doc.recompute()
